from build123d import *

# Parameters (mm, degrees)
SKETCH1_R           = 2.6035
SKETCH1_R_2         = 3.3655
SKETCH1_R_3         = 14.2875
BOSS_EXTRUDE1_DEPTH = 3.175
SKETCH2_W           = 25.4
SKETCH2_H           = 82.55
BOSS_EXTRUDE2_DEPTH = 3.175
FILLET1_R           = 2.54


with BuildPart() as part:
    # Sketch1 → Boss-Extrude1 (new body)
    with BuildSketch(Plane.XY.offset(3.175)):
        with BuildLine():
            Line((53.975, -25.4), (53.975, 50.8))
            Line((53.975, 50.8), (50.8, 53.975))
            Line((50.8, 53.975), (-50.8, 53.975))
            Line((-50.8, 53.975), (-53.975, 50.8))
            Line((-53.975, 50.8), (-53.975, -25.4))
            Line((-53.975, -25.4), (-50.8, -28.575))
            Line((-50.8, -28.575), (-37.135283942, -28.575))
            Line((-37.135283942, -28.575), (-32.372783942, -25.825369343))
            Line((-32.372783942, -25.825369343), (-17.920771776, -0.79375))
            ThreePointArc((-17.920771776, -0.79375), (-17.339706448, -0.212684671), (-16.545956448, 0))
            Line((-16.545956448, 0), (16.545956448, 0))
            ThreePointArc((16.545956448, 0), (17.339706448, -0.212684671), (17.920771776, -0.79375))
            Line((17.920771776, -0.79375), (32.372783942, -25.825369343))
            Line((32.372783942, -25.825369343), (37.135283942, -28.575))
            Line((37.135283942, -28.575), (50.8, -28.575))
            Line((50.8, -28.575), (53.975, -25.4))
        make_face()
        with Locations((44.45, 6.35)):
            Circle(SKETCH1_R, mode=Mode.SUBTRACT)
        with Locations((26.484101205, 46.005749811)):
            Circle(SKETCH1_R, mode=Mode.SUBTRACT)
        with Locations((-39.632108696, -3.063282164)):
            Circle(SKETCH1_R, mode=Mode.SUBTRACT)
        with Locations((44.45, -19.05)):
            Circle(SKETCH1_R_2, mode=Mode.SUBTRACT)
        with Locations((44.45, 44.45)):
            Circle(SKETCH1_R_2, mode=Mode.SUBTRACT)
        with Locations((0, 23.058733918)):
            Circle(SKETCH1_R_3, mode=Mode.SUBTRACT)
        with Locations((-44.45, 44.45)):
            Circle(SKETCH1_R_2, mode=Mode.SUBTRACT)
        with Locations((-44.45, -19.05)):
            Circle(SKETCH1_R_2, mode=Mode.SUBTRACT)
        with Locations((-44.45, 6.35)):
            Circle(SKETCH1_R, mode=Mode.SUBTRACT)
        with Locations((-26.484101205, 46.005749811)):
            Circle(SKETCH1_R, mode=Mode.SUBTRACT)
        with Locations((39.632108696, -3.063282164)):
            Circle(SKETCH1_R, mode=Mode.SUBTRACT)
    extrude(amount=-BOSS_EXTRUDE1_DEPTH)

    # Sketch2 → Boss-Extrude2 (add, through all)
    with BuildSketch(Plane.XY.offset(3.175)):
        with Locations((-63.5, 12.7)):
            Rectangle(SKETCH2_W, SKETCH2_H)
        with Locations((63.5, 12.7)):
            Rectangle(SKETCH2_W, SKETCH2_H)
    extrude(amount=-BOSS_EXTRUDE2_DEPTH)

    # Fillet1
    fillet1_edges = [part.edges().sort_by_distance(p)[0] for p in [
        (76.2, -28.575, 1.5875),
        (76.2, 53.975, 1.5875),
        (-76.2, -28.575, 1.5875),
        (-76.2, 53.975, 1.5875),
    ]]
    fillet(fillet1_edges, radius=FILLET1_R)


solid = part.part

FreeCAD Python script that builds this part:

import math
import FreeCAD as App
import Part
import Sketcher
Q = App.Units.Quantity


def edges_at(feature, points):
    """Names of the edges that pass closest to the given points."""
    edges = feature.Shape.Edges
    near = lambda p: min(range(len(edges)), key=lambda i: edges[i].distToShape(Part.Vertex(*p))[0])
    return sorted({f"Edge{near(p) + 1}" for p in points})


def add_polygon(sketch, points):
    """Adds a closed chain of lines whose ends are joined by coincident constraints."""
    first, n = sketch.GeometryCount, len(points)
    for a, b in zip(points, points[1:] + points[:1]):
        sketch.addGeometry(Part.LineSegment(App.Vector(*a, 0), App.Vector(*b, 0)), False)
    for i in range(n):
        sketch.addConstraint(Sketcher.Constraint("Coincident", first + i, 2, first + (i + 1) % n, 1))

doc = App.newDocument("Part")
body = doc.addObject("PartDesign::Body", "Body")

sketch1 = body.newObject("Sketcher::SketchObject", "Sketch")
sketch1.AttachmentSupport = (doc.getObject("XY_Plane"), [""])
sketch1.MapMode = "FlatFace"
sketch1.AttachmentOffset = App.Placement(App.Vector(0, 0, 0.125 * 25.4), App.Rotation())
sketch1.addGeometry(Part.LineSegment(App.Vector(54, -25.4, 0), App.Vector(54, 50.8, 0)), False)
sketch1.addGeometry(Part.LineSegment(App.Vector(54, 50.8, 0), App.Vector(50.8, 54, 0)), False)
sketch1.addGeometry(Part.LineSegment(App.Vector(50.8, 54, 0), App.Vector(-50.8, 54, 0)), False)
sketch1.addGeometry(Part.LineSegment(App.Vector(-50.8, 54, 0), App.Vector(-54, 50.8, 0)), False)
sketch1.addGeometry(Part.LineSegment(App.Vector(-54, 50.8, 0), App.Vector(-54, -25.4, 0)), False)
sketch1.addGeometry(Part.LineSegment(App.Vector(-54, -25.4, 0), App.Vector(-50.8, -28.6, 0)), False)
sketch1.addGeometry(Part.LineSegment(App.Vector(-50.8, -28.6, 0), App.Vector(-37.1, -28.6, 0)), False)
sketch1.addGeometry(Part.LineSegment(App.Vector(-37.1, -28.6, 0), App.Vector(-32.4, -25.8, 0)), False)
sketch1.addGeometry(Part.LineSegment(App.Vector(-32.4, -25.8, 0), App.Vector(-17.9, -0.8, 0)), False)
sketch1.addGeometry(Part.ArcOfCircle(Part.Circle(App.Vector(-16.5, -1.6, 0), App.Vector(0, 0, 1), 1.6), math.radians(90), math.radians(150)), False)
sketch1.addGeometry(Part.LineSegment(App.Vector(-16.5, 0, 0), App.Vector(16.5, 0, 0)), False)
sketch1.addGeometry(Part.ArcOfCircle(Part.Circle(App.Vector(16.5, -1.6, 0), App.Vector(0, 0, 1), 1.6), math.radians(30), math.radians(90)), False)
sketch1.addGeometry(Part.LineSegment(App.Vector(17.9, -0.8, 0), App.Vector(32.4, -25.8, 0)), False)
sketch1.addGeometry(Part.LineSegment(App.Vector(32.4, -25.8, 0), App.Vector(37.1, -28.6, 0)), False)
sketch1.addGeometry(Part.LineSegment(App.Vector(37.1, -28.6, 0), App.Vector(50.8, -28.6, 0)), False)
sketch1.addGeometry(Part.LineSegment(App.Vector(50.8, -28.6, 0), App.Vector(54, -25.4, 0)), False)
sketch1.addGeometry(Part.Circle(App.Vector(-44.5, -19.1, 0), App.Vector(0, 0, 1), 3.4), False)
sketch1.addGeometry(Part.Circle(App.Vector(-39.6, -3.1, 0), App.Vector(0, 0, 1), 2.6), False)
sketch1.addGeometry(Part.Circle(App.Vector(-44.5, 6.3, 0), App.Vector(0, 0, 1), 2.6), False)
sketch1.addGeometry(Part.Circle(App.Vector(44.5, -19.1, 0), App.Vector(0, 0, 1), 3.4), False)
sketch1.addGeometry(Part.Circle(App.Vector(39.6, -3.1, 0), App.Vector(0, 0, 1), 2.6), False)
sketch1.addGeometry(Part.Circle(App.Vector(44.5, 6.3, 0), App.Vector(0, 0, 1), 2.6), False)
sketch1.addGeometry(Part.Circle(App.Vector(-44.5, 44.5, 0), App.Vector(0, 0, 1), 3.4), False)
sketch1.addGeometry(Part.Circle(App.Vector(-26.5, 46, 0), App.Vector(0, 0, 1), 2.6), False)
sketch1.addGeometry(Part.Circle(App.Vector(0, 23.1, 0), App.Vector(0, 0, 1), 14.3), False)
sketch1.addGeometry(Part.Circle(App.Vector(26.5, 46, 0), App.Vector(0, 0, 1), 2.6), False)
sketch1.addGeometry(Part.Circle(App.Vector(44.5, 44.5, 0), App.Vector(0, 0, 1), 3.4), False)
sketch1.addConstraint(Sketcher.Constraint("Coincident", 0, 2, 1, 1))
sketch1.addConstraint(Sketcher.Constraint("Coincident", 1, 2, 2, 1))
sketch1.addConstraint(Sketcher.Constraint("Coincident", 2, 2, 3, 1))
sketch1.addConstraint(Sketcher.Constraint("Coincident", 3, 2, 4, 1))
sketch1.addConstraint(Sketcher.Constraint("Coincident", 4, 2, 5, 1))
sketch1.addConstraint(Sketcher.Constraint("Coincident", 5, 2, 6, 1))
sketch1.addConstraint(Sketcher.Constraint("Coincident", 6, 2, 7, 1))
sketch1.addConstraint(Sketcher.Constraint("Coincident", 7, 2, 8, 1))
sketch1.addConstraint(Sketcher.Constraint("Tangent", 8, 2, 9, 2))
sketch1.addConstraint(Sketcher.Constraint("Tangent", 9, 1, 10, 1))
sketch1.addConstraint(Sketcher.Constraint("Tangent", 10, 2, 11, 2))
sketch1.addConstraint(Sketcher.Constraint("Tangent", 11, 1, 12, 1))
sketch1.addConstraint(Sketcher.Constraint("Coincident", 12, 2, 13, 1))
sketch1.addConstraint(Sketcher.Constraint("Coincident", 13, 2, 14, 1))
sketch1.addConstraint(Sketcher.Constraint("Coincident", 14, 2, 15, 1))
sketch1.addConstraint(Sketcher.Constraint("Coincident", 15, 2, 0, 1))
sketch1.addConstraint(Sketcher.Constraint("Vertical", 0))
sketch1.addConstraint(Sketcher.Constraint("Horizontal", 2))
sketch1.addConstraint(Sketcher.Constraint("Vertical", 4))
sketch1.addConstraint(Sketcher.Constraint("Horizontal", 6))
sketch1.addConstraint(Sketcher.Constraint("Horizontal", 10))
sketch1.addConstraint(Sketcher.Constraint("Horizontal", 14))
sketch1.addConstraint(Sketcher.Constraint("Equal", 9, 11))
sketch1.addConstraint(Sketcher.Constraint("Equal", 17, 18))
sketch1.addConstraint(Sketcher.Constraint("Equal", 16, 19))
sketch1.addConstraint(Sketcher.Constraint("Equal", 18, 20))
sketch1.addConstraint(Sketcher.Constraint("Equal", 20, 21))
sketch1.addConstraint(Sketcher.Constraint("Equal", 19, 22))
sketch1.addConstraint(Sketcher.Constraint("Equal", 21, 23))
sketch1.addConstraint(Sketcher.Constraint("Equal", 23, 25))
sketch1.addConstraint(Sketcher.Constraint("Equal", 22, 26))
sketch1.addConstraint(Sketcher.Constraint("Symmetric", 9, 1, 10, 2, -1, 1))
sketch1.addConstraint(Sketcher.Constraint("Symmetric", 16, 3, 19, 3, -2))
sketch1.addConstraint(Sketcher.Constraint("Symmetric", 17, 3, 20, 3, -2))
sketch1.addConstraint(Sketcher.Constraint("Symmetric", 18, 3, 21, 3, -2))
sketch1.addConstraint(Sketcher.Constraint("Symmetric", 23, 3, 25, 3, -2))
sketch1.addConstraint(Sketcher.Constraint("Symmetric", 22, 3, 26, 3, -2))
sketch1.addConstraint(Sketcher.Constraint("Symmetric", 0, 2, 3, 2, -2))
sketch1.addConstraint(Sketcher.Constraint("Symmetric", 7, 2, 12, 2, -2))
sketch1.addConstraint(Sketcher.Constraint("Symmetric", 6, 2, 13, 2, -2))
sketch1.addConstraint(Sketcher.Constraint("PointOnObject", 24, 3, -2))
sketch1.addConstraint(Sketcher.Constraint("Perpendicular", 1, 3))
sketch1.addConstraint(Sketcher.Constraint("Perpendicular", 3, 5))
sketch1.addConstraint(Sketcher.Constraint("Perpendicular", 7, 12))
sketch1.addConstraint(Sketcher.Constraint("Perpendicular", 5, 15))
sketch1.addConstraint(Sketcher.Constraint("Horizontal", 4, 2, 15, 2))
sketch1.addConstraint(Sketcher.Constraint("Vertical", 16, 3, 18, 3))
sketch1.addConstraint(Sketcher.Constraint("Vertical", 18, 3, 22, 3))
sketch1.addConstraint(Sketcher.Constraint("Vertical", 2, 2, 5, 2))
sketch1.addConstraint(Sketcher.Constraint("Vertical", 1, 2, 14, 2))
sketch1.addConstraint(Sketcher.Constraint("DistanceX", 2, 2, 2, 1, Q("4 in")))
sketch1.addConstraint(Sketcher.Constraint("DistanceY", 0, 1, 0, 2, Q("3 in")))
sketch1.addConstraint(Sketcher.Constraint("Diameter", 16, Q("0.265 in")))
sketch1.addConstraint(Sketcher.Constraint("Diameter", 17, Q("0.205 in")))
sketch1.addConstraint(Sketcher.Constraint("Diameter", 24, Q("1.125 in")))
sketch1.addConstraint(Sketcher.Constraint("DistanceY", -1, 1, 0, 2, Q("2 in")))
sketch1.addConstraint(Sketcher.Constraint("Angle", 7, Q("30 deg")))
sketch1.addConstraint(Sketcher.Constraint("Radius", 9, Q("0.0625 in")))
sketch1.addConstraint(Sketcher.Constraint("DistanceY", 16, 3, 18, 3, Q("1 in")))
sketch1.addConstraint(Sketcher.Constraint("DistanceX", 16, 3, 19, 3, Q("3.5 in")))
sketch1.addConstraint(Sketcher.Constraint("DistanceY", 18, 3, 22, 3, Q("1.5 in")))
sketch1.addConstraint(Sketcher.Constraint("DistanceY", 16, 3, -1, 1, Q("0.75 in")))
sketch1.addConstraint(Sketcher.Constraint("DistanceX", -1, 1, 0, 2, Q("2.125 in")))
sketch1.addConstraint(Sketcher.Constraint("DistanceX", 6, 2, 7, 2, Q("0.1875 in")))
sketch1.addConstraint(Sketcher.Constraint("DistanceX", 17, 3, 6, 2, Q("0.0983002 in")))
sketch1.addConstraint(Sketcher.Constraint("DistanceX", 23, 3, -1, 1, 26.484101))
sketch1.addConstraint(Sketcher.Constraint("DistanceX", 6, 1, 6, 2, 13.664716))
sketch1.addConstraint(Sketcher.Constraint("DistanceY", -1, 1, 23, 3, 46.00575))
sketch1.addConstraint(Sketcher.Constraint("DistanceY", 17, 3, 23, 3, 49.069032))
sketch1.addConstraint(Sketcher.Constraint("DistanceY", -1, 1, 24, 3, 23.058734))
pad1 = body.newObject("PartDesign::Pad", "Pad")
pad1.Profile = sketch1
pad1.Length = Q("0.125 in")
pad1.Reversed = True

sketch2 = body.newObject("Sketcher::SketchObject", "Sketch001")
sketch2.AttachmentSupport = (doc.getObject("XY_Plane"), [""])
sketch2.MapMode = "FlatFace"
sketch2.AttachmentOffset = App.Placement(App.Vector(0, 0, 0.125 * 25.4), App.Rotation())
add_polygon(sketch2, [(-76, 54), (-76, -29), (-51, -29), (-51, 54)])
add_polygon(sketch2, [(51, 54), (51, -29), (76, -29), (76, 54)])
sketch2.addConstraint(Sketcher.Constraint("Vertical", 0))
sketch2.addConstraint(Sketcher.Constraint("Horizontal", 1))
sketch2.addConstraint(Sketcher.Constraint("Vertical", 2))
sketch2.addConstraint(Sketcher.Constraint("Horizontal", 3))
sketch2.addConstraint(Sketcher.Constraint("Vertical", 4))
sketch2.addConstraint(Sketcher.Constraint("Horizontal", 5))
sketch2.addConstraint(Sketcher.Constraint("Vertical", 6))
sketch2.addConstraint(Sketcher.Constraint("Horizontal", 7))
sketch2.addConstraint(Sketcher.Constraint("Symmetric", 1, 2, 4, 2, -2))
sketch2.addConstraint(Sketcher.Constraint("Symmetric", 3, 2, 6, 2, -2))
sketch2.addConstraint(Sketcher.Constraint("DistanceX", 1, 1, 1, 2, Q("1 in")))
sketch2.addConstraint(Sketcher.Constraint("DistanceX", 0, 2, -1, 1, Q("3 in")))
sketch2.addConstraint(Sketcher.Constraint("DistanceY", 0, 2, 0, 1, Q("3.25 in")))
sketch2.addConstraint(Sketcher.Constraint("DistanceY", 0, 2, -1, 1, Q("1.125 in")))
pad2 = body.newObject("PartDesign::Pad", "Pad001")
pad2.Profile = sketch2
pad2.Length = Q("0.125 in")
pad2.Reversed = True
doc.recompute()

fillet = body.newObject("PartDesign::Fillet", "Fillet")
fillet.Base = (pad2, edges_at(pad2, [
    (76.2, -28.575, 1.587),
    (76.2, 53.975, 1.587),
    (-76.2, -28.575, 1.587),
    (-76.2, 53.975, 1.587),
]))
fillet.Radius = Q("0.1 in")

doc.recompute()
